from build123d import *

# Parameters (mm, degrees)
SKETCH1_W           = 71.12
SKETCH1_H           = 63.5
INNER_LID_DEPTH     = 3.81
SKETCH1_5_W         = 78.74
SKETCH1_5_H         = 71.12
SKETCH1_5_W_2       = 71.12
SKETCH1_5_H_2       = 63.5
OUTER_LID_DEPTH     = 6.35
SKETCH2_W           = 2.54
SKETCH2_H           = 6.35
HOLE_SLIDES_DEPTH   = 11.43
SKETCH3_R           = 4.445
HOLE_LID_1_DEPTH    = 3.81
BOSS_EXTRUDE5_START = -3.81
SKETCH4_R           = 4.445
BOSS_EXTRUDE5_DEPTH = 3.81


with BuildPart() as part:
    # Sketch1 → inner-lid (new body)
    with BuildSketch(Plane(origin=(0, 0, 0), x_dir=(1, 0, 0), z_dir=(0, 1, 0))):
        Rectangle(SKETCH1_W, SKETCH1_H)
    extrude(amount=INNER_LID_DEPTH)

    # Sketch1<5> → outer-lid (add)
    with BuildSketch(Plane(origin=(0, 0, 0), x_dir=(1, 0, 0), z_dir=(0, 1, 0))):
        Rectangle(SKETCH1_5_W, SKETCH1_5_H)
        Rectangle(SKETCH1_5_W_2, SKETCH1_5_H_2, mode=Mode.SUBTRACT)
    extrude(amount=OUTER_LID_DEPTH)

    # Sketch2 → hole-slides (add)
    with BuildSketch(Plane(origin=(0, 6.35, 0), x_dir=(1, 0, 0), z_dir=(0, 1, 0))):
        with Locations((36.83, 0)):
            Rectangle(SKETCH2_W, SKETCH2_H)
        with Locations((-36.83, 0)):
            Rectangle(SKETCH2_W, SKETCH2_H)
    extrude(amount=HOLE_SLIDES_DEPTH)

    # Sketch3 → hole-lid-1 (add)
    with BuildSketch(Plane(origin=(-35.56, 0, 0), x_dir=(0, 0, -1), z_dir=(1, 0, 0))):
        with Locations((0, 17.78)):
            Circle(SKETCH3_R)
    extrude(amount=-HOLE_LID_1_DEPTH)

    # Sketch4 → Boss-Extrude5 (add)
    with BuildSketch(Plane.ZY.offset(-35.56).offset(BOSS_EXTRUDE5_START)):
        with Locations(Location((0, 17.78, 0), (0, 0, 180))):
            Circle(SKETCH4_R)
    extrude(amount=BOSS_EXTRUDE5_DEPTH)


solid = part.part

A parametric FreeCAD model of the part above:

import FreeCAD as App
import Part
import Sketcher

V = App.Vector
Q = App.Units.Quantity

doc = App.newDocument("Part")
body = doc.addObject("PartDesign::Body", "Body")

sketch1 = body.newObject("Sketcher::SketchObject", "Sketch")
sketch1.AttachmentSupport = (doc.getObject("XZ_Plane"), [""])
sketch1.MapMode = "FlatFace"
sketch1.addGeometry(Part.LineSegment(V(-35.56, -31.75, 0), V(-35.56, 31.75, 0)), False)
sketch1.addGeometry(Part.LineSegment(V(-35.56, 31.75, 0), V(35.56, 31.75, 0)), False)
sketch1.addGeometry(Part.LineSegment(V(35.56, 31.75, 0), V(35.56, -31.75, 0)), False)
sketch1.addGeometry(Part.LineSegment(V(35.56, -31.75, 0), V(-35.56, -31.75, 0)), False)
sketch1.addConstraint(Sketcher.Constraint("Coincident", 0, 2, 1, 1))
sketch1.addConstraint(Sketcher.Constraint("Coincident", 1, 2, 2, 1))
sketch1.addConstraint(Sketcher.Constraint("Coincident", 2, 2, 3, 1))
sketch1.addConstraint(Sketcher.Constraint("Coincident", 3, 2, 0, 1))
sketch1.addConstraint(Sketcher.Constraint("Vertical", 0))
sketch1.addConstraint(Sketcher.Constraint("Horizontal", 1))
sketch1.addConstraint(Sketcher.Constraint("Vertical", 2))
sketch1.addConstraint(Sketcher.Constraint("Horizontal", 3))
sketch1.addConstraint(Sketcher.Constraint("Symmetric", 0, 2, 2, 2, -1, 1))
sketch1.addConstraint(Sketcher.Constraint("DistanceX", 1, 1, 1, 2, Q("2.8 in")))
sketch1.addConstraint(Sketcher.Constraint("DistanceY", 0, 1, 0, 2, Q("2.5 in")))
pad1 = body.newObject("PartDesign::Pad", "Pad")
pad1.Profile = sketch1
pad1.Length = Q("0.15 in")
pad1.Reversed = True

sketch2 = body.newObject("Sketcher::SketchObject", "Sketch001")
sketch2.AttachmentSupport = (doc.getObject("XZ_Plane"), [""])
sketch2.MapMode = "FlatFace"
sketch2.addGeometry(Part.LineSegment(V(-39.37, -35.56, 0), V(-39.37, 35.56, 0)), False)
sketch2.addGeometry(Part.LineSegment(V(-39.37, 35.56, 0), V(39.37, 35.56, 0)), False)
sketch2.addGeometry(Part.LineSegment(V(39.37, 35.56, 0), V(39.37, -35.56, 0)), False)
sketch2.addGeometry(Part.LineSegment(V(39.37, -35.56, 0), V(-39.37, -35.56, 0)), False)
sketch2.addGeometry(Part.LineSegment(V(35.56, 31.75, 0), V(-35.56, 31.75, 0)), False)
sketch2.addGeometry(Part.LineSegment(V(-35.56, 31.75, 0), V(-35.56, -31.75, 0)), False)
sketch2.addGeometry(Part.LineSegment(V(-35.56, -31.75, 0), V(35.56, -31.75, 0)), False)
sketch2.addGeometry(Part.LineSegment(V(35.56, -31.75, 0), V(35.56, 31.75, 0)), False)
sketch2.addConstraint(Sketcher.Constraint("Coincident", 0, 2, 1, 1))
sketch2.addConstraint(Sketcher.Constraint("Coincident", 1, 2, 2, 1))
sketch2.addConstraint(Sketcher.Constraint("Coincident", 2, 2, 3, 1))
sketch2.addConstraint(Sketcher.Constraint("Coincident", 3, 2, 0, 1))
sketch2.addConstraint(Sketcher.Constraint("Coincident", 4, 2, 5, 1))
sketch2.addConstraint(Sketcher.Constraint("Coincident", 5, 2, 6, 1))
sketch2.addConstraint(Sketcher.Constraint("Coincident", 6, 2, 7, 1))
sketch2.addConstraint(Sketcher.Constraint("Coincident", 7, 2, 4, 1))
sketch2.addConstraint(Sketcher.Constraint("Vertical", 0))
sketch2.addConstraint(Sketcher.Constraint("Horizontal", 1))
sketch2.addConstraint(Sketcher.Constraint("Vertical", 2))
sketch2.addConstraint(Sketcher.Constraint("Horizontal", 3))
sketch2.addConstraint(Sketcher.Constraint("Horizontal", 4))
sketch2.addConstraint(Sketcher.Constraint("Vertical", 5))
sketch2.addConstraint(Sketcher.Constraint("Horizontal", 6))
sketch2.addConstraint(Sketcher.Constraint("Vertical", 7))
sketch2.addConstraint(Sketcher.Constraint("Symmetric", 0, 2, 2, 2, -1, 1))
sketch2.addConstraint(Sketcher.Constraint("Symmetric", 4, 2, 6, 2, -1, 1))
sketch2.addConstraint(Sketcher.Constraint("Equal", 6, 0))
sketch2.addConstraint(Sketcher.Constraint("DistanceX", 1, 1, 1, 2, Q("3.1 in")))
sketch2.addConstraint(Sketcher.Constraint("DistanceX", 4, 2, 4, 1, Q("2.8 in")))
sketch2.addConstraint(Sketcher.Constraint("DistanceY", 5, 2, 5, 1, Q("2.5 in")))
pad2 = body.newObject("PartDesign::Pad", "Pad001")
pad2.Profile = sketch2
pad2.Length = Q("0.25 in")
pad2.Reversed = True

sketch3 = body.newObject("Sketcher::SketchObject", "Sketch002")
sketch3.AttachmentSupport = (doc.getObject("XZ_Plane"), [""])
sketch3.MapMode = "FlatFace"
sketch3.AttachmentOffset = App.Placement(V(0, 0, -0.25 * 25.4), App.Rotation())
sketch3.addGeometry(Part.LineSegment(V(35.56, -3.175, 0), V(35.56, 3.175, 0)), False)
sketch3.addGeometry(Part.LineSegment(V(35.56, 3.175, 0), V(38.1, 3.175, 0)), False)
sketch3.addGeometry(Part.LineSegment(V(38.1, 3.175, 0), V(38.1, -3.175, 0)), False)
sketch3.addGeometry(Part.LineSegment(V(38.1, -3.175, 0), V(35.56, -3.175, 0)), False)
sketch3.addGeometry(Part.LineSegment(V(-38.1, -3.175, 0), V(-38.1, 3.175, 0)), False)
sketch3.addGeometry(Part.LineSegment(V(-38.1, 3.175, 0), V(-35.56, 3.175, 0)), False)
sketch3.addGeometry(Part.LineSegment(V(-35.56, 3.175, 0), V(-35.56, -3.175, 0)), False)
sketch3.addGeometry(Part.LineSegment(V(-35.56, -3.175, 0), V(-38.1, -3.175, 0)), False)
sketch3.addConstraint(Sketcher.Constraint("Coincident", 0, 2, 1, 1))
sketch3.addConstraint(Sketcher.Constraint("Coincident", 1, 2, 2, 1))
sketch3.addConstraint(Sketcher.Constraint("Coincident", 2, 2, 3, 1))
sketch3.addConstraint(Sketcher.Constraint("Coincident", 3, 2, 0, 1))
sketch3.addConstraint(Sketcher.Constraint("Coincident", 4, 2, 5, 1))
sketch3.addConstraint(Sketcher.Constraint("Coincident", 5, 2, 6, 1))
sketch3.addConstraint(Sketcher.Constraint("Coincident", 6, 2, 7, 1))
sketch3.addConstraint(Sketcher.Constraint("Coincident", 7, 2, 4, 1))
sketch3.addConstraint(Sketcher.Constraint("Vertical", 0))
sketch3.addConstraint(Sketcher.Constraint("Horizontal", 1))
sketch3.addConstraint(Sketcher.Constraint("Vertical", 2))
sketch3.addConstraint(Sketcher.Constraint("Horizontal", 3))
sketch3.addConstraint(Sketcher.Constraint("Vertical", 4))
sketch3.addConstraint(Sketcher.Constraint("Horizontal", 5))
sketch3.addConstraint(Sketcher.Constraint("Vertical", 6))
sketch3.addConstraint(Sketcher.Constraint("Horizontal", 7))
sketch3.addConstraint(Sketcher.Constraint("Symmetric", 2, 2, 4, 2, -1, 1))
sketch3.addConstraint(Sketcher.Constraint("Symmetric", 0, 2, 6, 2, -1, 1))
sketch3.addConstraint(Sketcher.Constraint("Horizontal", 1, 2, 4, 2))
sketch3.addConstraint(Sketcher.Constraint("DistanceX", 1, 1, 1, 2, Q("0.1 in")))
sketch3.addConstraint(Sketcher.Constraint("DistanceX", 4, 2, 1, 2, Q("3 in")))
sketch3.addConstraint(Sketcher.Constraint("DistanceY", 0, 1, 0, 2, Q("0.25 in")))
pad3 = body.newObject("PartDesign::Pad", "Pad002")
pad3.Profile = sketch3
pad3.Length = Q("0.45 in")
pad3.Reversed = True

sketch4 = body.newObject("Sketcher::SketchObject", "Sketch003")
sketch4.AttachmentSupport = (doc.getObject("YZ_Plane"), [""])
sketch4.MapMode = "FlatFace"
sketch4.AttachmentOffset = App.Placement(V(0, 0, -1.4 * 25.4), App.Rotation())
sketch4.addGeometry(Part.Circle(V(17.78, 0, 0), V(0, 0, 1), 4.445), False)
sketch4.addConstraint(Sketcher.Constraint("PointOnObject", 0, 3, -1))
sketch4.addConstraint(Sketcher.Constraint("Diameter", 0, Q("0.35 in")))
sketch4.addConstraint(Sketcher.Constraint("DistanceX", -1, 1, 0, 3, Q("0.7 in")))
pad4 = body.newObject("PartDesign::Pad", "Pad003")
pad4.Profile = sketch4
pad4.Length = Q("0.15 in")
pad4.Reversed = True

sketch5 = body.newObject("Sketcher::SketchObject", "Sketch004")
sketch5.AttachmentSupport = (doc.getObject("YZ_Plane"), [""])
sketch5.MapMode = "FlatFace"
sketch5.AttachmentOffset = App.Placement(V(0, 0, 1.55 * 25.4), App.Rotation())
sketch5.addGeometry(Part.Circle(V(17.78, 0, 0), V(0, 0, 1), 4.445), False)
sketch5.addConstraint(Sketcher.Constraint("PointOnObject", 0, 3, -1))
sketch5.addConstraint(Sketcher.Constraint("Diameter", 0, Q("0.35 in")))
sketch5.addConstraint(Sketcher.Constraint("DistanceX", -1, 1, 0, 3, Q("0.7 in")))
pad5 = body.newObject("PartDesign::Pad", "Pad004")
pad5.Profile = sketch5
pad5.Length = Q("0.15 in")
pad5.Reversed = True

doc.recompute()
